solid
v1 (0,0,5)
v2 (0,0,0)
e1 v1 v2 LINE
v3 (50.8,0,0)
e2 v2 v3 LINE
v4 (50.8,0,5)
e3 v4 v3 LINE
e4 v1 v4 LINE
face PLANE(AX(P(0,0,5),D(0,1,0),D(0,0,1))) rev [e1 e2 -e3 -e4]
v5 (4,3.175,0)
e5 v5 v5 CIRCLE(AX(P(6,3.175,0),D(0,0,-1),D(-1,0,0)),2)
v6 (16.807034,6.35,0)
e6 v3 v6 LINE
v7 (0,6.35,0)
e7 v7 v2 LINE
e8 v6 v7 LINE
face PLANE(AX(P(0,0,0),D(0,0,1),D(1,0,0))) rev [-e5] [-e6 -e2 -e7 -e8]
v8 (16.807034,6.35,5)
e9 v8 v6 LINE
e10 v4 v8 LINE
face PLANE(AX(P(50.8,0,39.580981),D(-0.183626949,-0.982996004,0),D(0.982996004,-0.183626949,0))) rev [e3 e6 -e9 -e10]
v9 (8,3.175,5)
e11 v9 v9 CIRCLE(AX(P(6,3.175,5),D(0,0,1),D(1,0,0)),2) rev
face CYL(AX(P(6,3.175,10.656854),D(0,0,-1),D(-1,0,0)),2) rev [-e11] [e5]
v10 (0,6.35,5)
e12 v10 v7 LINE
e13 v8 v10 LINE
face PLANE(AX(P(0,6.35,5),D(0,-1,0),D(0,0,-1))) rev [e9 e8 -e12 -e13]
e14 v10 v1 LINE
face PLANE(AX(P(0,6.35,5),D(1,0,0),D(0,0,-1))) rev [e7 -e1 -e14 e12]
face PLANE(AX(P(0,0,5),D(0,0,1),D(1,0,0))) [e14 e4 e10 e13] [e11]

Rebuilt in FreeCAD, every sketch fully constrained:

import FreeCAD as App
import Part
import Sketcher

V = App.Vector
Q = App.Units.Quantity

doc = App.newDocument("Part")
body = doc.addObject("PartDesign::Body", "Body")

# Sketch on XY plane
sketch1 = body.newObject("Sketcher::SketchObject", "Sketch")
sketch1.AttachmentSupport = (doc.getObject("XY_Plane"), [""])
sketch1.MapMode = "FlatFace"
sketch1.addGeometry(Part.LineSegment(V(0, 6, 0), V(0, 0, 0)), False)
sketch1.addGeometry(Part.LineSegment(V(0, 0, 0), V(51, 0, 0)), False)
sketch1.addGeometry(Part.LineSegment(V(51, 0, 0), V(51, 6, 0)), False)
sketch1.addGeometry(Part.LineSegment(V(51, 6, 0), V(0, 6, 0)), False)
sketch1.addConstraint(Sketcher.Constraint("Coincident", 0, 2, 1, 1))
sketch1.addConstraint(Sketcher.Constraint("Coincident", 1, 2, 2, 1))
sketch1.addConstraint(Sketcher.Constraint("Coincident", 2, 2, 3, 1))
sketch1.addConstraint(Sketcher.Constraint("Coincident", 3, 2, 0, 1))
sketch1.addConstraint(Sketcher.Constraint("Vertical", 0))
sketch1.addConstraint(Sketcher.Constraint("Horizontal", 1))
sketch1.addConstraint(Sketcher.Constraint("Vertical", 2))
sketch1.addConstraint(Sketcher.Constraint("Horizontal", 3))
sketch1.addConstraint(Sketcher.Constraint("Coincident", 0, 2, -1, 1))
sketch1.addConstraint(Sketcher.Constraint("DistanceX", 1, 1, 1, 2, Q("50.8 mm")))
sketch1.addConstraint(Sketcher.Constraint("DistanceY", 0, 2, 0, 1, Q("6.35 mm")))
pad1 = body.newObject("PartDesign::Pad", "Pad")
pad1.Profile = sketch1
pad1.Length = 5

# Sketch on XY plane
sketch2 = body.newObject("Sketcher::SketchObject", "Sketch001")
sketch2.AttachmentSupport = (doc.getObject("XY_Plane"), [""])
sketch2.MapMode = "FlatFace"
sketch2.addGeometry(Part.Circle(V(6, 3.2, 0), V(0, 0, 1), 2), False)
sketch2.addConstraint(Sketcher.Constraint("Diameter", 0, Q("4 mm")))
sketch2.addConstraint(Sketcher.Constraint("DistanceX", -1, 1, 0, 3, Q("6 mm")))
sketch2.addConstraint(Sketcher.Constraint("DistanceY", -1, 1, 0, 3, Q("3.175 mm")))
pocket1 = body.newObject("PartDesign::Pocket", "Pocket")
pocket1.Profile = sketch2
pocket1.Length = 5
pocket1.Reversed = True

# Sketch on XY plane
sketch3 = body.newObject("Sketcher::SketchObject", "Sketch002")
sketch3.AttachmentSupport = (doc.getObject("XY_Plane"), [""])
sketch3.MapMode = "FlatFace"
sketch3.addGeometry(Part.LineSegment(V(51, 0, 0), V(17, 6, 0)), False)
sketch3.addGeometry(Part.LineSegment(V(17, 6, 0), V(51, 6, 0)), False)
sketch3.addGeometry(Part.LineSegment(V(51, 6, 0), V(51, 0, 0)), False)
sketch3.addConstraint(Sketcher.Constraint("Coincident", 0, 2, 1, 1))
sketch3.addConstraint(Sketcher.Constraint("Coincident", 1, 2, 2, 1))
sketch3.addConstraint(Sketcher.Constraint("Coincident", 2, 2, 0, 1))
sketch3.addConstraint(Sketcher.Constraint("Horizontal", 1))
sketch3.addConstraint(Sketcher.Constraint("Vertical", 2))
sketch3.addConstraint(Sketcher.Constraint("PointOnObject", 2, 2, -1))
sketch3.addConstraint(Sketcher.Constraint("DistanceY", 2, 2, 2, 1, Q("6.35 mm")))
sketch3.addConstraint(Sketcher.Constraint("DistanceX", -1, 1, 1, 2, Q("50.8 mm")))
sketch3.addConstraint(Sketcher.Constraint("Distance", 0, Q("34.580981 mm")))
pocket2 = body.newObject("PartDesign::Pocket", "Pocket001")
pocket2.Profile = sketch3
pocket2.Length = 5
pocket2.Reversed = True

doc.recompute()
